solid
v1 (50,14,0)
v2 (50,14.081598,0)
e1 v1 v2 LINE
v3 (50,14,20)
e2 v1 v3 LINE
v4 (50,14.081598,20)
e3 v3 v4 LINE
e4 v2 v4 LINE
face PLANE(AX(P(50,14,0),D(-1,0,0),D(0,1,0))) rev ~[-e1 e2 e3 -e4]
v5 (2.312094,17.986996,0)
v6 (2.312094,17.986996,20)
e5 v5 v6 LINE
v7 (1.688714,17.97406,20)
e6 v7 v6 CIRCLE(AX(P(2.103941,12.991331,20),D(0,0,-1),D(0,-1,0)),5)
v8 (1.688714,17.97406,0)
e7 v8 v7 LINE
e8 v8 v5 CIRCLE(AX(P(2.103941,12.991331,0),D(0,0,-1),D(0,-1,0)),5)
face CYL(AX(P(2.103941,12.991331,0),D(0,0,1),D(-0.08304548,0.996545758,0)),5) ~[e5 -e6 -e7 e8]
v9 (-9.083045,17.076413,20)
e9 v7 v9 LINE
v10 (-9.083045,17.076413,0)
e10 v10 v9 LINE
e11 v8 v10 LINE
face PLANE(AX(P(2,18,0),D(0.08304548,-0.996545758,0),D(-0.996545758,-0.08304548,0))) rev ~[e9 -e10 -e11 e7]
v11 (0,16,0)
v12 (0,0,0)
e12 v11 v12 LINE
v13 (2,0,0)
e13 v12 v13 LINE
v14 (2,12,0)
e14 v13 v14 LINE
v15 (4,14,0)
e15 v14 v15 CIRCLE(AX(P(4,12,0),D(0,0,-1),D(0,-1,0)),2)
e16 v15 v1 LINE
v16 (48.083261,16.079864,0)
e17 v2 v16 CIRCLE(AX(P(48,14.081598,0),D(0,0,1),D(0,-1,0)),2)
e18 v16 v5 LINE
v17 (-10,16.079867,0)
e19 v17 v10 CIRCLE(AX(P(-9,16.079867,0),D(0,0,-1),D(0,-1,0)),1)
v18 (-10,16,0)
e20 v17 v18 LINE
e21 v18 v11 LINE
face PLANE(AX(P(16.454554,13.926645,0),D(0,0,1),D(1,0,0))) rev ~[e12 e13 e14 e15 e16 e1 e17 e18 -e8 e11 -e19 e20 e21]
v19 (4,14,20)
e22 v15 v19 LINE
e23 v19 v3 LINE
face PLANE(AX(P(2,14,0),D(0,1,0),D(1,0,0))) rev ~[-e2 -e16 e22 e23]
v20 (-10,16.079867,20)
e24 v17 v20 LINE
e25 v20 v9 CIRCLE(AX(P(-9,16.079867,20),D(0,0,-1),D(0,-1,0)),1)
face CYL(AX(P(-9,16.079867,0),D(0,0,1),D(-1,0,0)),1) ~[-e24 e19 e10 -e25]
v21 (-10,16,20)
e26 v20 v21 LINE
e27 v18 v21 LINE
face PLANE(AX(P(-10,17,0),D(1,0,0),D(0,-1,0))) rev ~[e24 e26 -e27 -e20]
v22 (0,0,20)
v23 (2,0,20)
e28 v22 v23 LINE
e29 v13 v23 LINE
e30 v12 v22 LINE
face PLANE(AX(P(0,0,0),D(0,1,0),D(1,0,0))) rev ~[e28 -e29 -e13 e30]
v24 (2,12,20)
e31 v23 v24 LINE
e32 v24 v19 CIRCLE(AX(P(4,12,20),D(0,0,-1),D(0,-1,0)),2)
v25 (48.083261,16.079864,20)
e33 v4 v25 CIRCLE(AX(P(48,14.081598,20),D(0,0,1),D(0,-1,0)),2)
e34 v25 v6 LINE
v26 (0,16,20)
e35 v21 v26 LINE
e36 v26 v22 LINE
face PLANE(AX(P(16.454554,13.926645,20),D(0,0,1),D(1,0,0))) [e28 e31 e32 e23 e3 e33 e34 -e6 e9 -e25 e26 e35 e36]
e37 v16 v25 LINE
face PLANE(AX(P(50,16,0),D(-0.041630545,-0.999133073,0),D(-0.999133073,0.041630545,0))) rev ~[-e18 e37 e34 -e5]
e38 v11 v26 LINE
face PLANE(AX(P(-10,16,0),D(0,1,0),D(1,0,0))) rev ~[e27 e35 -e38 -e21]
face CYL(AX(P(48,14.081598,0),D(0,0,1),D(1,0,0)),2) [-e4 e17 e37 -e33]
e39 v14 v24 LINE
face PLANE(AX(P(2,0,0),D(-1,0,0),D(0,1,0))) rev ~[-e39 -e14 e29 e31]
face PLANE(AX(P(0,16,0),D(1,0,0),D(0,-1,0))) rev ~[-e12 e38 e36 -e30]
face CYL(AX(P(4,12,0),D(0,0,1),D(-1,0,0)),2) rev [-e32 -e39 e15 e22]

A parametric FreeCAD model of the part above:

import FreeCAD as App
import Part
import Sketcher

V = App.Vector
Q = App.Units.Quantity


def edges_at(feature, points):
    """Names of the edges that pass closest to the given points."""
    edges = feature.Shape.Edges
    near = lambda p: min(range(len(edges)), key=lambda i: edges[i].distToShape(Part.Vertex(*p))[0])
    return sorted({f"Edge{near(p) + 1}" for p in points})

doc = App.newDocument("Part")
body = doc.addObject("PartDesign::Body", "Body")

sketch1 = body.newObject("Sketcher::SketchObject", "Sketch")
sketch1.AttachmentSupport = (doc.getObject("XY_Plane"), [""])
sketch1.MapMode = "FlatFace"
sketch1.addGeometry([
    Part.LineSegment(V(0, 16, 0), V(0, 0, 0)),
    Part.LineSegment(V(0, 0, 0), V(2, 0, 0)),
    Part.LineSegment(V(2, 0, 0), V(2, 14, 0)),
    Part.LineSegment(V(2, 14, 0), V(50, 14, 0)),
    Part.LineSegment(V(50, 14, 0), V(50, 16, 0)),
    Part.LineSegment(V(50, 16, 0), V(2, 18, 0)),
    Part.LineSegment(V(2, 18, 0), V(-10, 17, 0)),
    Part.LineSegment(V(-10, 17, 0), V(-10, 16, 0)),
    Part.LineSegment(V(-10, 16, 0), V(0, 16, 0)),
], False)
sketch1.addConstraint([
    Sketcher.Constraint("Coincident", 0, 2, 1, 1),
    Sketcher.Constraint("Coincident", 1, 2, 2, 1),
    Sketcher.Constraint("Coincident", 2, 2, 3, 1),
    Sketcher.Constraint("Coincident", 3, 2, 4, 1),
    Sketcher.Constraint("Coincident", 4, 2, 5, 1),
    Sketcher.Constraint("Coincident", 5, 2, 6, 1),
    Sketcher.Constraint("Coincident", 6, 2, 7, 1),
    Sketcher.Constraint("Coincident", 7, 2, 8, 1),
    Sketcher.Constraint("Coincident", 8, 2, 0, 1),
    Sketcher.Constraint("Vertical", 0),
    Sketcher.Constraint("Horizontal", 1),
    Sketcher.Constraint("Vertical", 2),
    Sketcher.Constraint("Horizontal", 3),
    Sketcher.Constraint("Vertical", 4),
    Sketcher.Constraint("Vertical", 7),
    Sketcher.Constraint("Horizontal", 8),
    Sketcher.Constraint("Coincident", 0, 2, -1, 1),
    Sketcher.Constraint("Horizontal", 4, 2, 7, 2),
    Sketcher.Constraint("Vertical", 2, 2, 5, 2),
    Sketcher.Constraint("Equal", 1, 4),
    Sketcher.Constraint("DistanceX", 1, 1, 1, 2, Q("2 mm")),
    Sketcher.Constraint("DistanceX", 3, 1, 3, 2, Q("48 mm")),
    Sketcher.Constraint("DistanceX", 8, 1, 8, 2, Q("10 mm")),
    Sketcher.Constraint("DistanceY", 0, 2, 0, 1, Q("16 mm")),
    Sketcher.Constraint("DistanceY", 7, 2, 7, 1, Q("1 mm")),
    Sketcher.Constraint("DistanceY", -1, 1, 5, 2, Q("18 mm")),
])
pad1 = body.newObject("PartDesign::Pad", "Pad")
pad1.Profile = sketch1
pad1.Length = 20
doc.recompute()

fillet = body.newObject("PartDesign::Fillet", "Fillet")
fillet.Base = (pad1, edges_at(pad1, [(50, 16, 10), (2, 14, 10)]))
fillet.Radius = 2
doc.recompute()

fillet2 = body.newObject("PartDesign::Fillet", "Fillet001")
fillet2.Base = (fillet, edges_at(fillet, [(-10, 17, 10)]))
fillet2.Radius = 1
doc.recompute()

fillet3 = body.newObject("PartDesign::Fillet", "Fillet002")
fillet3.Base = (fillet2, edges_at(fillet2, [(2, 18, 10)]))
fillet3.Radius = 5

doc.recompute()
